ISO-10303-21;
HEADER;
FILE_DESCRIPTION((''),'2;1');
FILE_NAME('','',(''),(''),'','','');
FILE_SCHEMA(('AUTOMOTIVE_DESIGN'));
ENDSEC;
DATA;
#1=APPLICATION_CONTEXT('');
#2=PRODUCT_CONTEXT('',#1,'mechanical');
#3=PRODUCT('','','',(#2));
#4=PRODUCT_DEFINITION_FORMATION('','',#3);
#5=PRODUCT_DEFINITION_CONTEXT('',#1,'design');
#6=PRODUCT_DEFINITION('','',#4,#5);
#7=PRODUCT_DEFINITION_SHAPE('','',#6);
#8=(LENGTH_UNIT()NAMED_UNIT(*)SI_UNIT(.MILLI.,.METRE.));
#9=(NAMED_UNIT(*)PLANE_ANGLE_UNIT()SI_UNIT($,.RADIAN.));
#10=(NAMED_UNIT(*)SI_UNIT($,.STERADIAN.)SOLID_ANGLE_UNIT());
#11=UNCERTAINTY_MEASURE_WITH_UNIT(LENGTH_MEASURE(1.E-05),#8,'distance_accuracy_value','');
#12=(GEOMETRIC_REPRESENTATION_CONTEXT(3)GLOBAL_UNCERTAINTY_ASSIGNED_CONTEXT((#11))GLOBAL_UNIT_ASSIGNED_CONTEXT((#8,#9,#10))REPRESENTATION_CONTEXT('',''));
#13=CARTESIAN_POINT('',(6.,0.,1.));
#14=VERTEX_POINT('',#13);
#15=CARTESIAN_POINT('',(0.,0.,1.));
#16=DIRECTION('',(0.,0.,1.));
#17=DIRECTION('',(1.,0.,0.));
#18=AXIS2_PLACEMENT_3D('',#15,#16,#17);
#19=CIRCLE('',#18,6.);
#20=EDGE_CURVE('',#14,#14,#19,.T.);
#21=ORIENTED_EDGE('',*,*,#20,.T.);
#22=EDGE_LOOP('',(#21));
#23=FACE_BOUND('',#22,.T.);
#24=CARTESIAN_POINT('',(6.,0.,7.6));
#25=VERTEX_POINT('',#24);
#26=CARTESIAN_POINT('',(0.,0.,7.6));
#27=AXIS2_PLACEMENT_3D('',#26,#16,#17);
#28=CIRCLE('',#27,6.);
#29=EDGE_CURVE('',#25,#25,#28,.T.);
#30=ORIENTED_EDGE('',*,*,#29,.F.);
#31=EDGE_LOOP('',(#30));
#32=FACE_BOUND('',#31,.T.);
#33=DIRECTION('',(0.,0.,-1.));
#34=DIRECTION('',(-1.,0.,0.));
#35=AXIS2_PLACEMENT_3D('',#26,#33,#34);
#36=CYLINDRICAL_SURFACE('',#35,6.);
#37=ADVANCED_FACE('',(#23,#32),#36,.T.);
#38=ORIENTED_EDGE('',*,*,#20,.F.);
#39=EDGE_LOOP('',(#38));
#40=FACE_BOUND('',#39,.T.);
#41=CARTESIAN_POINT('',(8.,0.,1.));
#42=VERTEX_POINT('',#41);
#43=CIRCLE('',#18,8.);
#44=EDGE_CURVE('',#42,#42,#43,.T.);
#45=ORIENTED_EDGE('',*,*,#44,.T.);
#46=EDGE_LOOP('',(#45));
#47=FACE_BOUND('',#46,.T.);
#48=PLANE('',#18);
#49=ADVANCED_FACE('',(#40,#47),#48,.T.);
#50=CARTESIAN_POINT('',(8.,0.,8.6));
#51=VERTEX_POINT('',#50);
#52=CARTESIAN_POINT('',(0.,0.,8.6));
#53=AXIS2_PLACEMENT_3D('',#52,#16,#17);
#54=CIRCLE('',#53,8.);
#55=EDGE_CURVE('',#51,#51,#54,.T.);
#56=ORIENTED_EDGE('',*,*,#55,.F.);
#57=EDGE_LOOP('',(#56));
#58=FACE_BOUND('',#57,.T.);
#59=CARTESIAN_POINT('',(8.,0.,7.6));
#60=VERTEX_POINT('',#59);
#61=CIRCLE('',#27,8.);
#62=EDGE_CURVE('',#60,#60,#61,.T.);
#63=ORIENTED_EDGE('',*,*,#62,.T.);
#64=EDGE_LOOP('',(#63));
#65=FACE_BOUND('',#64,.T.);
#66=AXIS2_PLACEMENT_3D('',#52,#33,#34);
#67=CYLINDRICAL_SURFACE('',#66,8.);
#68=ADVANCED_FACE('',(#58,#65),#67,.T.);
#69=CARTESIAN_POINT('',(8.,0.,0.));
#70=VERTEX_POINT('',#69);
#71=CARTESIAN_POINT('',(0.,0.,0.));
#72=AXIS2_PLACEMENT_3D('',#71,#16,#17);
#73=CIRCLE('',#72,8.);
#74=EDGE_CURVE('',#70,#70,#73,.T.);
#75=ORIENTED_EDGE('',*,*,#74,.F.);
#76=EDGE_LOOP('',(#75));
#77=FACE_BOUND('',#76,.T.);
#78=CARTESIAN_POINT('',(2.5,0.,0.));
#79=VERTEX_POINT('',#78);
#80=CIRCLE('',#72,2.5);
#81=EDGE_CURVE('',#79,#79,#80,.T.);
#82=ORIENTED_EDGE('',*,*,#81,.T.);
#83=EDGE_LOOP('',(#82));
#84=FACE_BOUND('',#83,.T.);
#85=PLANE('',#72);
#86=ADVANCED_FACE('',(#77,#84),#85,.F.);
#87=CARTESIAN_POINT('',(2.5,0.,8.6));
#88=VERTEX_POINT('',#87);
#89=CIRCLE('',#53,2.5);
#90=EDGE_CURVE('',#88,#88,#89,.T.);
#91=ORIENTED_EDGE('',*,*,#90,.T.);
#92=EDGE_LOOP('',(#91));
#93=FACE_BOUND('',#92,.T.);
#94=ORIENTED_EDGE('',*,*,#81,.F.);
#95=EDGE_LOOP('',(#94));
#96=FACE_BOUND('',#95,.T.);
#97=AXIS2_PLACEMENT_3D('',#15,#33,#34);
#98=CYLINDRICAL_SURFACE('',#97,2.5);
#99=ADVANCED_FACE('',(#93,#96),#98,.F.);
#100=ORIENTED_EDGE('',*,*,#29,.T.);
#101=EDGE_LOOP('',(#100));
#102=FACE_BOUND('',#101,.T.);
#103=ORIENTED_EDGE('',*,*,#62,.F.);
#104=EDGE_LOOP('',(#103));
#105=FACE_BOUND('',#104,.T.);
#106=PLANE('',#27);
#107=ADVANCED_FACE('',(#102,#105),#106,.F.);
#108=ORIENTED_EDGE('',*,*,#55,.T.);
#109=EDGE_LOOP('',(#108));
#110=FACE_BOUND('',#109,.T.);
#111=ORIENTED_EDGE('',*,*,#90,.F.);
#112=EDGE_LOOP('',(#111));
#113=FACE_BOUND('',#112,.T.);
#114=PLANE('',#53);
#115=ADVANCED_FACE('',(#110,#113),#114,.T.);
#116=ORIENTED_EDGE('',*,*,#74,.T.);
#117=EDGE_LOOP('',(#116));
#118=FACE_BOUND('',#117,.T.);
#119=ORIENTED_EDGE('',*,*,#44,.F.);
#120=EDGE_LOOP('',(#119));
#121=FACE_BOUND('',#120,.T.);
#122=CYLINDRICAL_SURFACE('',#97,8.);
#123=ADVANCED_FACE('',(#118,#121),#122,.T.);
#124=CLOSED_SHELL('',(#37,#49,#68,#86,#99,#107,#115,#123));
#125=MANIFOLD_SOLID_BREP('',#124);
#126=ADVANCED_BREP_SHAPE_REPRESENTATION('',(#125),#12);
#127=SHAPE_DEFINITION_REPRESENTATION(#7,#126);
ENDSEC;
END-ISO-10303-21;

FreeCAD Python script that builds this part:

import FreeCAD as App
import Part
import Sketcher

V = App.Vector

doc = App.newDocument("Part")
body = doc.addObject("PartDesign::Body", "Body")

sketch1 = doc.addObject("Sketcher::SketchObject", "Sketch")
body.addObject(sketch1)
sketch1.AttachmentSupport = (doc.XY_Plane, [""])
sketch1.MapMode = "FlatFace"
sketch1.addGeometry([
    Part.Circle(V(0, 0, 0), V(0, 0, 1), 8),
    Part.Circle(V(0, 0, 0), V(0, 0, 1), 2.5),
], False)
sketch1.addConstraint([
    Sketcher.Constraint("Coincident", 0, 3, -1, 1),
    Sketcher.Constraint("Coincident", 1, 3, -1, 1),
    Sketcher.Constraint("Diameter", 0, 16.0),
    Sketcher.Constraint("Diameter", 1, 5.0),
])
pad1 = doc.addObject("PartDesign::Pad", "Pad")
body.addObject(pad1)
pad1.Profile = sketch1
pad1.Length = 1

sketch2 = doc.addObject("Sketcher::SketchObject", "Sketch001")
body.addObject(sketch2)
sketch2.AttachmentSupport = (doc.XY_Plane, [""])
sketch2.MapMode = "FlatFace"
sketch2.AttachmentOffset = App.Placement(V(0, 0, 1), App.Rotation())
sketch2.addGeometry([
    Part.Circle(V(0, 0, 0), V(0, 0, 1), 6),
    Part.Circle(V(0, 0, 0), V(0, 0, 1), 2.5),
], False)
sketch2.addConstraint([
    Sketcher.Constraint("Coincident", 0, 3, -1, 1),
    Sketcher.Constraint("Coincident", 1, 3, -1, 1),
    Sketcher.Constraint("Diameter", 0, 12.0),
    Sketcher.Constraint("Diameter", 1, 5.0),
])
pad2 = doc.addObject("PartDesign::Pad", "Pad001")
body.addObject(pad2)
pad2.Profile = sketch2
pad2.Length = 6.6

sketch3 = doc.addObject("Sketcher::SketchObject", "Sketch002")
body.addObject(sketch3)
sketch3.AttachmentSupport = (doc.XY_Plane, [""])
sketch3.MapMode = "FlatFace"
sketch3.AttachmentOffset = App.Placement(V(0, 0, 7.6), App.Rotation())
sketch3.addGeometry([
    Part.Circle(V(0, 0, 0), V(0, 0, 1), 8),
    Part.Circle(V(0, 0, 0), V(0, 0, 1), 2.5),
], False)
sketch3.addConstraint([
    Sketcher.Constraint("Coincident", 0, 3, -1, 1),
    Sketcher.Constraint("Coincident", 1, 3, -1, 1),
    Sketcher.Constraint("Diameter", 0, 16.0),
    Sketcher.Constraint("Diameter", 1, 5.0),
])
pad3 = doc.addObject("PartDesign::Pad", "Pad002")
body.addObject(pad3)
pad3.Profile = sketch3
pad3.Length = 1

doc.recompute()
